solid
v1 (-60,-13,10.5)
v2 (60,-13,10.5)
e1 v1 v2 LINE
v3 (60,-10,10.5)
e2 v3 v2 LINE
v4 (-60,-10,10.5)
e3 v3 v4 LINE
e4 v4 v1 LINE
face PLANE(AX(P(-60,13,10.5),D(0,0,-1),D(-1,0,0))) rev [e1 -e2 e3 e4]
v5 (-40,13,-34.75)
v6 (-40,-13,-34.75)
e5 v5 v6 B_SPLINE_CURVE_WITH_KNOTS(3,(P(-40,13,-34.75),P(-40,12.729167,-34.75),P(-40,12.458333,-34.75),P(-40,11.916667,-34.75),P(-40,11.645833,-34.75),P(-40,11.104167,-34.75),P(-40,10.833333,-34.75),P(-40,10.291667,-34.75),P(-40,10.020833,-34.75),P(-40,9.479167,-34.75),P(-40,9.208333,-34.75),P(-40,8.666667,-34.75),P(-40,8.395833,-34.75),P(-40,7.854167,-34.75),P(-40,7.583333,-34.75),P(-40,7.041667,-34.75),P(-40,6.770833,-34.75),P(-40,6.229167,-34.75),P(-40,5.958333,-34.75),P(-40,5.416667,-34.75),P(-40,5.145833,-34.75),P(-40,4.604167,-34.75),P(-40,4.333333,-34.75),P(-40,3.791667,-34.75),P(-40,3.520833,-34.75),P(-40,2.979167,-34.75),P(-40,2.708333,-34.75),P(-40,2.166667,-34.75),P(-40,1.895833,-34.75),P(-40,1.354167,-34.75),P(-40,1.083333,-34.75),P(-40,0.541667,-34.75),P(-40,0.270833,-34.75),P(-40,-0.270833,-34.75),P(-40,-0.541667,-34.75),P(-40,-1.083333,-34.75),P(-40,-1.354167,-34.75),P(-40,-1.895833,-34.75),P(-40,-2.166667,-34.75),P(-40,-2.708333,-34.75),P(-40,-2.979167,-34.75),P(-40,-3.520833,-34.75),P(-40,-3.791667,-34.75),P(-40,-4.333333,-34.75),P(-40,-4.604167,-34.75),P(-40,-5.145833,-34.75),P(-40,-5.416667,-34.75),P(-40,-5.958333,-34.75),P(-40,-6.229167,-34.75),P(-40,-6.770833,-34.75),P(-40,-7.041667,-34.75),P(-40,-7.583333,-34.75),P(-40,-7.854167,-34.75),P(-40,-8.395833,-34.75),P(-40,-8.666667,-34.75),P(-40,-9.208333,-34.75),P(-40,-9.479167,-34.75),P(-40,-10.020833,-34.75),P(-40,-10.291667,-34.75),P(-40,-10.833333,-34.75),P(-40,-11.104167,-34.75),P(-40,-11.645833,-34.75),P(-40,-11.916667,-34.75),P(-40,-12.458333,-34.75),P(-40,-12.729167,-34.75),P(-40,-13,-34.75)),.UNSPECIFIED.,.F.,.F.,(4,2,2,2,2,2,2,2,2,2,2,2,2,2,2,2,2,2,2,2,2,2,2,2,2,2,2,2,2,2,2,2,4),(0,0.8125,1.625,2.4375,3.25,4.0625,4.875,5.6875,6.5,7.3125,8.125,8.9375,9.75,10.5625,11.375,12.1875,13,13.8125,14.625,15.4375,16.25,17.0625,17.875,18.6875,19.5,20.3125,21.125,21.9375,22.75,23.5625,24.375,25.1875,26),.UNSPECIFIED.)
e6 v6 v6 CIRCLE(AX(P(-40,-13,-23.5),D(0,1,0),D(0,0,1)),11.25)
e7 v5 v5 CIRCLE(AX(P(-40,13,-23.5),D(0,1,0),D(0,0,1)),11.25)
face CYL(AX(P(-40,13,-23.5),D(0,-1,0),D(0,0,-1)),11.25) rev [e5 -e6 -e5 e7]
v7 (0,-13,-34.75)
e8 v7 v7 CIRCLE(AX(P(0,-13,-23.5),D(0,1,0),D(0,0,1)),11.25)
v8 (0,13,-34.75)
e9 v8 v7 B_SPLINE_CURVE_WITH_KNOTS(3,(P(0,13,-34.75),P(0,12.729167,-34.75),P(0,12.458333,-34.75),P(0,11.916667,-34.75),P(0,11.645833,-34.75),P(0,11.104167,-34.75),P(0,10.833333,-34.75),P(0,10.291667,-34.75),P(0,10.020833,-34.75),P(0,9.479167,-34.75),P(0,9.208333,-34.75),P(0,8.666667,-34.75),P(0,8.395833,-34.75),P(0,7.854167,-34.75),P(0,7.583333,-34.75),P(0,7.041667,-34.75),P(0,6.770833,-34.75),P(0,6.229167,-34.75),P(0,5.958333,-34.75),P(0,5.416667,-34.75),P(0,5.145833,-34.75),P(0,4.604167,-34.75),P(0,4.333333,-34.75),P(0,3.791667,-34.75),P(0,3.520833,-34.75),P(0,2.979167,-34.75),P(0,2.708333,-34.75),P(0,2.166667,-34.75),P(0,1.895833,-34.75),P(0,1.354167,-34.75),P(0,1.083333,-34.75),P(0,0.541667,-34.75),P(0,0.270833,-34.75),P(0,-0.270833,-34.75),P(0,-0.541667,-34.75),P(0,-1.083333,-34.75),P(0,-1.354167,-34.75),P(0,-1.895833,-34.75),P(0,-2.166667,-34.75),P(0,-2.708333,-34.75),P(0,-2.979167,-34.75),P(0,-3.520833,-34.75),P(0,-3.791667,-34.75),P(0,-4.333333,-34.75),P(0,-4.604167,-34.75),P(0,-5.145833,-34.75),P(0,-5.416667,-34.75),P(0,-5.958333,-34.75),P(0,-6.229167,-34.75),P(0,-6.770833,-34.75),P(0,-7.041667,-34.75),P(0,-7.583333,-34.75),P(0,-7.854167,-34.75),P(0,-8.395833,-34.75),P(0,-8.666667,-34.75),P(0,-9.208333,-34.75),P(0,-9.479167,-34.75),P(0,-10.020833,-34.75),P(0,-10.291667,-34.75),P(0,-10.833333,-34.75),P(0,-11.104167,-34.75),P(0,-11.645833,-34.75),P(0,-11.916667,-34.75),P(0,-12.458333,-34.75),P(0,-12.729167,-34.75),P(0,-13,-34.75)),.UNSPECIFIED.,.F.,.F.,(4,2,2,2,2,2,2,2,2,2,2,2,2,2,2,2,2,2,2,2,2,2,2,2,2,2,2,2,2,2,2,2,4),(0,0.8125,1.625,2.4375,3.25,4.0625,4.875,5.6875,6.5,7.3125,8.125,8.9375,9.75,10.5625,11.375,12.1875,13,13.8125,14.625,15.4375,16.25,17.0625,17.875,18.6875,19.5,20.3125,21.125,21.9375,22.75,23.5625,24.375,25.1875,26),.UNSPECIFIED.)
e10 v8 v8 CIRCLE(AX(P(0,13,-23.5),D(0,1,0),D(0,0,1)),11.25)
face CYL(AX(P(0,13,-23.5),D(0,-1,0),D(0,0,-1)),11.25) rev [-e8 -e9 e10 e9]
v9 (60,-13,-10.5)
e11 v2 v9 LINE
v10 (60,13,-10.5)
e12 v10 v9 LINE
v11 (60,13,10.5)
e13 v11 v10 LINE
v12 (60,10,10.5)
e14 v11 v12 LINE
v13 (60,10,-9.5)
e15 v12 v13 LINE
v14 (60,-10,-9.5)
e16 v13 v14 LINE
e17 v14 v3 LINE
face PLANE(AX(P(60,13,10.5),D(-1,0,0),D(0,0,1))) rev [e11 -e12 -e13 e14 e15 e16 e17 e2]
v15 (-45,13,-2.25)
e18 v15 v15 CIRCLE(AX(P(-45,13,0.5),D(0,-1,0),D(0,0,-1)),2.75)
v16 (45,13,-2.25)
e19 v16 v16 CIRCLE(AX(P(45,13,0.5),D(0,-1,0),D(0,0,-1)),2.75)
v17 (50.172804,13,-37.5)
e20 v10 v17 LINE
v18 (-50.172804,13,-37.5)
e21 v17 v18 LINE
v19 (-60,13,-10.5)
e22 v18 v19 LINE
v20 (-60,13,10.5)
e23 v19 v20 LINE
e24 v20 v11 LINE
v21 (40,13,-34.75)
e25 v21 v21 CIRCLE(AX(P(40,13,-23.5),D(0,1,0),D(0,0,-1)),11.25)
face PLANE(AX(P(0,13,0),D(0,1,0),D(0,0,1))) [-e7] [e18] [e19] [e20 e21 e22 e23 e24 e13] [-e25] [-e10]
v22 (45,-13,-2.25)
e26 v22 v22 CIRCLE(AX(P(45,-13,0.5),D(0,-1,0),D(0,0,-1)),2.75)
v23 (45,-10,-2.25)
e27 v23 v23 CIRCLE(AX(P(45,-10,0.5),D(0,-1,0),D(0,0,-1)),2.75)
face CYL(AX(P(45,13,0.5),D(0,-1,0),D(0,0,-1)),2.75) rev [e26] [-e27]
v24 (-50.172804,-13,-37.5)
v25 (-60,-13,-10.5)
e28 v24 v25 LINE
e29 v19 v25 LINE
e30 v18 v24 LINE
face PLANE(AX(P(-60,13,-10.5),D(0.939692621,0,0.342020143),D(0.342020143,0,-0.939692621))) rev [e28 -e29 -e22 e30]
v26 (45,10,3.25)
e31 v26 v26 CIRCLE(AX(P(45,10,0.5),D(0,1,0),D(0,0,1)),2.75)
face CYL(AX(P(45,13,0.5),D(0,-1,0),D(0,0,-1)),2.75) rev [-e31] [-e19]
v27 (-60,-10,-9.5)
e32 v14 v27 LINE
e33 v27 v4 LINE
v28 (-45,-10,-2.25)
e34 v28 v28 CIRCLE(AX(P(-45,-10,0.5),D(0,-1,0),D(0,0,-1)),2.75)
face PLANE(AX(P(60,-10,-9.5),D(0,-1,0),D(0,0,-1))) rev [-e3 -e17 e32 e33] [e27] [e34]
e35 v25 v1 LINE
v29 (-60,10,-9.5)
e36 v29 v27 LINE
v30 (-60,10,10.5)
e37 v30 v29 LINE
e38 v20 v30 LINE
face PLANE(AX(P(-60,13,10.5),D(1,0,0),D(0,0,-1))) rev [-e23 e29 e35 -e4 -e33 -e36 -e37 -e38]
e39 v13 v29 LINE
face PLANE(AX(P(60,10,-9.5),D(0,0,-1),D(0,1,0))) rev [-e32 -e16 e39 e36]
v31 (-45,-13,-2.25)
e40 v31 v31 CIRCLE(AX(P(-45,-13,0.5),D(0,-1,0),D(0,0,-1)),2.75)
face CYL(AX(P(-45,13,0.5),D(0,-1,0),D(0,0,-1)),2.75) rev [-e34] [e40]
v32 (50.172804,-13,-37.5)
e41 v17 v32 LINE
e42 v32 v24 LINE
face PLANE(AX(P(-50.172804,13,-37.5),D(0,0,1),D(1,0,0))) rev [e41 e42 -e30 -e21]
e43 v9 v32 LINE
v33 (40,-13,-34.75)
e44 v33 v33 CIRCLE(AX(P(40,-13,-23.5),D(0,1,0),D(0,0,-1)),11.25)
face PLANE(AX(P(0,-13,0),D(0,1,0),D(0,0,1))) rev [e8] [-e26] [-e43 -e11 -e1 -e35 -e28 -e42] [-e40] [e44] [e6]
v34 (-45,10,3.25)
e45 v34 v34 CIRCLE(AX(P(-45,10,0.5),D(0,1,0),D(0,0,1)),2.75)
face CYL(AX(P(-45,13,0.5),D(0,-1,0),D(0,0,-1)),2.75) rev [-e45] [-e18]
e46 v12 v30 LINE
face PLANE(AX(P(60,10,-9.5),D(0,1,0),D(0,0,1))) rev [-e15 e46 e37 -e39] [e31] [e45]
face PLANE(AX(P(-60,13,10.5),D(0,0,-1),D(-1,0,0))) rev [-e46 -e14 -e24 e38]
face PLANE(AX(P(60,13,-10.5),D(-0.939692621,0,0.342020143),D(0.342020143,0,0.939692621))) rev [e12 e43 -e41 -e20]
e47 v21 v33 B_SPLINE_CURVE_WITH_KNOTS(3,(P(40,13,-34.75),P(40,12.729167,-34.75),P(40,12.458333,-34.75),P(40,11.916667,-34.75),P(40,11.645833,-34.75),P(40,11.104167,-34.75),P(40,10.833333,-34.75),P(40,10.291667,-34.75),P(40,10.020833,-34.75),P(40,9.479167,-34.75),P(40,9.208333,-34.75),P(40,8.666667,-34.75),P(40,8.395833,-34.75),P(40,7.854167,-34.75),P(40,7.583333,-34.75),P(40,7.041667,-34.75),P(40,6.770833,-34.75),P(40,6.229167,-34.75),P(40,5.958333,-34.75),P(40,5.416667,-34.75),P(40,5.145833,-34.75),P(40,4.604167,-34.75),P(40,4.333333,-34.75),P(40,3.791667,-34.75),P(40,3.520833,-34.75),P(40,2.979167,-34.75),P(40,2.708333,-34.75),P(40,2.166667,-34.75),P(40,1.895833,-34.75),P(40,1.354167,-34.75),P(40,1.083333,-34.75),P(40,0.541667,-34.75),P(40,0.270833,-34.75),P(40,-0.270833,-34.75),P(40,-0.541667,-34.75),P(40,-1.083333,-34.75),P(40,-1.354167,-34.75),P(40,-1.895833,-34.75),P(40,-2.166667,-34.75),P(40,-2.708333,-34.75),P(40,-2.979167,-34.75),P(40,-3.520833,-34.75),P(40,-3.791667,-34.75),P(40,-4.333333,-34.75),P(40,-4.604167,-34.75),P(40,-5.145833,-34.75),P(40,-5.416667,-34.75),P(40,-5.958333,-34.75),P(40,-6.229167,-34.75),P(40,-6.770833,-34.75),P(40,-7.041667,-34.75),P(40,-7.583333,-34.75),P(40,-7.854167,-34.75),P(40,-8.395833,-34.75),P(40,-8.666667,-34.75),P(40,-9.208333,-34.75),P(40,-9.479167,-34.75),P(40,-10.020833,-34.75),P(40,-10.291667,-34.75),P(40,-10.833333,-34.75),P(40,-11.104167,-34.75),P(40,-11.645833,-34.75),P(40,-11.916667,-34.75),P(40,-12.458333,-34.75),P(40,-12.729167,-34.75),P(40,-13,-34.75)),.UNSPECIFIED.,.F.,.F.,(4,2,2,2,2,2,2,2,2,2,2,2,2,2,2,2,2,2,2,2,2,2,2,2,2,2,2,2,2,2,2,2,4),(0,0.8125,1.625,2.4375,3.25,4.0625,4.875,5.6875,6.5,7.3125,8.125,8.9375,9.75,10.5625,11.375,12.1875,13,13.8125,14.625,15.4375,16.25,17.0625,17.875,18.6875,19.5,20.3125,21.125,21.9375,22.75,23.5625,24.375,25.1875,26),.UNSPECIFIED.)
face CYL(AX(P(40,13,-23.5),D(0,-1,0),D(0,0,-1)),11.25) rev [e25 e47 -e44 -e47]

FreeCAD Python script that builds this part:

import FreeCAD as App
import Part
import Sketcher

V = App.Vector
Q = App.Units.Quantity

doc = App.newDocument("Part")
body = doc.addObject("PartDesign::Body", "Body")

sketch1 = body.newObject("Sketcher::SketchObject", "Sketch")
sketch1.AttachmentSupport = (doc.getObject("XZ_Plane"), [""])
sketch1.MapMode = "FlatFace"
sketch1.addGeometry([
    Part.LineSegment(V(-60, 10, 0), V(60, 10, 0)),
    Part.LineSegment(V(60, 10, 0), V(60, -10, 0)),
    Part.LineSegment(V(60, -10, 0), V(50, -38, 0)),
    Part.LineSegment(V(50, -38, 0), V(-50, -38, 0)),
    Part.LineSegment(V(-50, -38, 0), V(-60, -10, 0)),
    Part.LineSegment(V(-60, -10, 0), V(-60, 10, 0)),
    Part.Circle(V(-40, -24, 0), V(0, 0, 1), 11),
    Part.Circle(V(0, -24, 0), V(0, 0, 1), 11),
    Part.Circle(V(40, -24, 0), V(0, 0, 1), 11),
], False)
sketch1.addConstraint([
    Sketcher.Constraint("Coincident", 0, 2, 1, 1),
    Sketcher.Constraint("Coincident", 1, 2, 2, 1),
    Sketcher.Constraint("Coincident", 2, 2, 3, 1),
    Sketcher.Constraint("Coincident", 3, 2, 4, 1),
    Sketcher.Constraint("Coincident", 4, 2, 5, 1),
    Sketcher.Constraint("Coincident", 5, 2, 0, 1),
    Sketcher.Constraint("Horizontal", 0),
    Sketcher.Constraint("Vertical", 1),
    Sketcher.Constraint("Horizontal", 3),
    Sketcher.Constraint("Vertical", 5),
    Sketcher.Constraint("Equal", 6, 7),
    Sketcher.Constraint("Equal", 7, 8),
    Sketcher.Constraint("Symmetric", 0, 2, 4, 2, -1, 1),
    Sketcher.Constraint("Symmetric", 6, 3, 8, 3, -2),
    Sketcher.Constraint("PointOnObject", 7, 3, -2),
    Sketcher.Constraint("Horizontal", 6, 3, 7, 3),
    Sketcher.Constraint("Horizontal", 1, 2, 4, 2),
    Sketcher.Constraint("Equal", 2, 4),
    Sketcher.Constraint("Diameter", 6, 22.5),
    Sketcher.Constraint("DistanceX", 0, 1, 0, 2, 120.0),
    Sketcher.Constraint("DistanceY", 1, 2, 1, 1, 21.0),
    Sketcher.Constraint("Angle", 2, Q("-110 deg")),
    Sketcher.Constraint("DistanceX", 6, 3, -1, 1, 40.0),
    Sketcher.Constraint("DistanceY", 8, 3, 0, 2, 34.0),
    Sketcher.Constraint("DistanceY", 2, 2, 8, 3, 14.0),
])
pad1 = body.newObject("PartDesign::Pad", "Pad")
pad1.Profile = sketch1
pad1.Length = 26
pad1.Midplane = True

sketch2 = body.newObject("Sketcher::SketchObject", "Sketch001")
sketch2.AttachmentSupport = (doc.getObject("YZ_Plane"), [""])
sketch2.MapMode = "FlatFace"
sketch2.AttachmentOffset = App.Placement(V(0, 0, -60), App.Rotation())
sketch2.addGeometry([
    Part.LineSegment(V(10, -10, 0), V(-10, -10, 0)),
    Part.LineSegment(V(-10, -10, 0), V(-10, 10, 0)),
    Part.LineSegment(V(-10, 10, 0), V(10, 10, 0)),
    Part.LineSegment(V(10, 10, 0), V(10, -10, 0)),
], False)
sketch2.addConstraint([
    Sketcher.Constraint("Coincident", 0, 2, 1, 1),
    Sketcher.Constraint("Coincident", 1, 2, 2, 1),
    Sketcher.Constraint("Coincident", 2, 2, 3, 1),
    Sketcher.Constraint("Coincident", 3, 2, 0, 1),
    Sketcher.Constraint("Horizontal", 0),
    Sketcher.Constraint("Vertical", 1),
    Sketcher.Constraint("Horizontal", 2),
    Sketcher.Constraint("Vertical", 3),
    Sketcher.Constraint("Equal", 2, 1),
    Sketcher.Constraint("DistanceX", 0, 2, 0, 1, 20.0),
    Sketcher.Constraint("DistanceX", 0, 2, -1, 1, 10.0),
    Sketcher.Constraint("DistanceY", 0, 2, -1, 1, 9.5),
])
pocket1 = body.newObject("PartDesign::Pocket", "Pocket")
pocket1.Profile = sketch2
pocket1.Type = "ThroughAll"
pocket1.Reversed = True

sketch3 = body.newObject("Sketcher::SketchObject", "Sketch002")
sketch3.AttachmentSupport = (doc.getObject("XZ_Plane"), [""])
sketch3.MapMode = "FlatFace"
sketch3.AttachmentOffset = App.Placement(V(0, 0, -10), App.Rotation())
sketch3.addGeometry([
    Part.Circle(V(45, 0.5, 0), V(0, 0, 1), 2.8),
    Part.Circle(V(-45, 0.5, 0), V(0, 0, 1), 2.8),
], False)
sketch3.addConstraint([
    Sketcher.Constraint("Equal", 0, 1),
    Sketcher.Constraint("Symmetric", 0, 3, 1, 3, -2),
    Sketcher.Constraint("Diameter", 0, 5.5),
    Sketcher.Constraint("DistanceX", -1, 1, 0, 3, 45.0),
    Sketcher.Constraint("DistanceY", -1, 1, 0, 3, 0.5),
])
pocket2 = body.newObject("PartDesign::Pocket", "Pocket001")
pocket2.Profile = sketch3
pocket2.Type = "ThroughAll"
pocket2.Midplane = True

doc.recompute()
